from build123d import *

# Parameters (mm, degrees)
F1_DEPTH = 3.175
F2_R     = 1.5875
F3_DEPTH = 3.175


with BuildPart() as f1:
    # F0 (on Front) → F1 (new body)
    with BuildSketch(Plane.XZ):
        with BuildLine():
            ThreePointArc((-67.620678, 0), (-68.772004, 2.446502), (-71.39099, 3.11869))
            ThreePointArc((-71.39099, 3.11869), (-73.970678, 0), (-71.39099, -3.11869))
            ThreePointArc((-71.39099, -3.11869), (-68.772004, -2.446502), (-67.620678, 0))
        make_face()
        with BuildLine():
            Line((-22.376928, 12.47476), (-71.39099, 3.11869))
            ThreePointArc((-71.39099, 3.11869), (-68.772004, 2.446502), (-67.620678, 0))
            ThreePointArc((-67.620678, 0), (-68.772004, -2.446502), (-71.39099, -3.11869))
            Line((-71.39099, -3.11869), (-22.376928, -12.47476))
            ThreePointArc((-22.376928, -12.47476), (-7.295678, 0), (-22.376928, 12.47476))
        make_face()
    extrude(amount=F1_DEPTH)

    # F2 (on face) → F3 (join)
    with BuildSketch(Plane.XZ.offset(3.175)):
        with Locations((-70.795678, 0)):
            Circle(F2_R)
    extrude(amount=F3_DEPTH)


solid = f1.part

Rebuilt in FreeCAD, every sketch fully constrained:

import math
import FreeCAD as App
import Part
import Sketcher
from FreeCAD import Vector
Q = App.Units.Quantity

doc = App.newDocument("Part")
body = doc.addObject("PartDesign::Body", "Body")

# Sketch on XZ plane
sketch1 = body.newObject("Sketcher::SketchObject", "Sketch")
sketch1.AttachmentSupport = (doc.getObject("XZ_Plane"), [""])
sketch1.MapMode = "FlatFace"
sketch1.addGeometry([
    Part.ArcOfCircle(Part.Circle(Vector(-70.8, 0, 0), Vector(0, 0, 1), 3.2), math.radians(101), math.radians(259)),
    Part.LineSegment(Vector(-71.4, -3.1, 0), Vector(-22.4, -12.5, 0)),
    Part.ArcOfCircle(Part.Circle(Vector(-20, 0, 0), Vector(0, 0, 1), 12.7), math.radians(-101), math.radians(101)),
    Part.LineSegment(Vector(-22.4, 12.5, 0), Vector(-71.4, 3.1, 0)),
], False)
sketch1.addConstraint([
    Sketcher.Constraint("Tangent", 0, 2, 1, 1),
    Sketcher.Constraint("Tangent", 1, 2, 2, 1),
    Sketcher.Constraint("Tangent", 2, 2, 3, 1),
    Sketcher.Constraint("Tangent", 3, 2, 0, 1),
    Sketcher.Constraint("Symmetric", 1, 2, 2, 2, -1),
    Sketcher.Constraint("Radius", 2, Q("0.5 in")),
    Sketcher.Constraint("Radius", 0, Q("0.125 in")),
    Sketcher.Constraint("DistanceX", 0, 3, 2, 3, Q("2 in")),
    Sketcher.Constraint("DistanceX", 0, 3, -1, 1, 70.795678),
])
pad1 = body.newObject("PartDesign::Pad", "Pad")
pad1.Profile = sketch1
pad1.Length = Q("0.125 in")

# Sketch on XZ plane
sketch2 = body.newObject("Sketcher::SketchObject", "Sketch001")
sketch2.AttachmentSupport = (doc.getObject("XZ_Plane"), [""])
sketch2.MapMode = "FlatFace"
sketch2.AttachmentOffset = App.Placement(Vector(0, 0, 0.125 * 25.4), App.Rotation())
sketch2.addGeometry(Part.Circle(Vector(-70.8, 0, 0), Vector(0, 0, 1), 1.6), False)
sketch2.addConstraint([
    Sketcher.Constraint("PointOnObject", 0, 3, -1),
    Sketcher.Constraint("Diameter", 0, Q("0.125 in")),
    Sketcher.Constraint("DistanceX", 0, 3, -1, 1, 70.795678),
])
pad2 = body.newObject("PartDesign::Pad", "Pad001")
pad2.Profile = sketch2
pad2.Length = Q("0.125 in")

doc.recompute()
